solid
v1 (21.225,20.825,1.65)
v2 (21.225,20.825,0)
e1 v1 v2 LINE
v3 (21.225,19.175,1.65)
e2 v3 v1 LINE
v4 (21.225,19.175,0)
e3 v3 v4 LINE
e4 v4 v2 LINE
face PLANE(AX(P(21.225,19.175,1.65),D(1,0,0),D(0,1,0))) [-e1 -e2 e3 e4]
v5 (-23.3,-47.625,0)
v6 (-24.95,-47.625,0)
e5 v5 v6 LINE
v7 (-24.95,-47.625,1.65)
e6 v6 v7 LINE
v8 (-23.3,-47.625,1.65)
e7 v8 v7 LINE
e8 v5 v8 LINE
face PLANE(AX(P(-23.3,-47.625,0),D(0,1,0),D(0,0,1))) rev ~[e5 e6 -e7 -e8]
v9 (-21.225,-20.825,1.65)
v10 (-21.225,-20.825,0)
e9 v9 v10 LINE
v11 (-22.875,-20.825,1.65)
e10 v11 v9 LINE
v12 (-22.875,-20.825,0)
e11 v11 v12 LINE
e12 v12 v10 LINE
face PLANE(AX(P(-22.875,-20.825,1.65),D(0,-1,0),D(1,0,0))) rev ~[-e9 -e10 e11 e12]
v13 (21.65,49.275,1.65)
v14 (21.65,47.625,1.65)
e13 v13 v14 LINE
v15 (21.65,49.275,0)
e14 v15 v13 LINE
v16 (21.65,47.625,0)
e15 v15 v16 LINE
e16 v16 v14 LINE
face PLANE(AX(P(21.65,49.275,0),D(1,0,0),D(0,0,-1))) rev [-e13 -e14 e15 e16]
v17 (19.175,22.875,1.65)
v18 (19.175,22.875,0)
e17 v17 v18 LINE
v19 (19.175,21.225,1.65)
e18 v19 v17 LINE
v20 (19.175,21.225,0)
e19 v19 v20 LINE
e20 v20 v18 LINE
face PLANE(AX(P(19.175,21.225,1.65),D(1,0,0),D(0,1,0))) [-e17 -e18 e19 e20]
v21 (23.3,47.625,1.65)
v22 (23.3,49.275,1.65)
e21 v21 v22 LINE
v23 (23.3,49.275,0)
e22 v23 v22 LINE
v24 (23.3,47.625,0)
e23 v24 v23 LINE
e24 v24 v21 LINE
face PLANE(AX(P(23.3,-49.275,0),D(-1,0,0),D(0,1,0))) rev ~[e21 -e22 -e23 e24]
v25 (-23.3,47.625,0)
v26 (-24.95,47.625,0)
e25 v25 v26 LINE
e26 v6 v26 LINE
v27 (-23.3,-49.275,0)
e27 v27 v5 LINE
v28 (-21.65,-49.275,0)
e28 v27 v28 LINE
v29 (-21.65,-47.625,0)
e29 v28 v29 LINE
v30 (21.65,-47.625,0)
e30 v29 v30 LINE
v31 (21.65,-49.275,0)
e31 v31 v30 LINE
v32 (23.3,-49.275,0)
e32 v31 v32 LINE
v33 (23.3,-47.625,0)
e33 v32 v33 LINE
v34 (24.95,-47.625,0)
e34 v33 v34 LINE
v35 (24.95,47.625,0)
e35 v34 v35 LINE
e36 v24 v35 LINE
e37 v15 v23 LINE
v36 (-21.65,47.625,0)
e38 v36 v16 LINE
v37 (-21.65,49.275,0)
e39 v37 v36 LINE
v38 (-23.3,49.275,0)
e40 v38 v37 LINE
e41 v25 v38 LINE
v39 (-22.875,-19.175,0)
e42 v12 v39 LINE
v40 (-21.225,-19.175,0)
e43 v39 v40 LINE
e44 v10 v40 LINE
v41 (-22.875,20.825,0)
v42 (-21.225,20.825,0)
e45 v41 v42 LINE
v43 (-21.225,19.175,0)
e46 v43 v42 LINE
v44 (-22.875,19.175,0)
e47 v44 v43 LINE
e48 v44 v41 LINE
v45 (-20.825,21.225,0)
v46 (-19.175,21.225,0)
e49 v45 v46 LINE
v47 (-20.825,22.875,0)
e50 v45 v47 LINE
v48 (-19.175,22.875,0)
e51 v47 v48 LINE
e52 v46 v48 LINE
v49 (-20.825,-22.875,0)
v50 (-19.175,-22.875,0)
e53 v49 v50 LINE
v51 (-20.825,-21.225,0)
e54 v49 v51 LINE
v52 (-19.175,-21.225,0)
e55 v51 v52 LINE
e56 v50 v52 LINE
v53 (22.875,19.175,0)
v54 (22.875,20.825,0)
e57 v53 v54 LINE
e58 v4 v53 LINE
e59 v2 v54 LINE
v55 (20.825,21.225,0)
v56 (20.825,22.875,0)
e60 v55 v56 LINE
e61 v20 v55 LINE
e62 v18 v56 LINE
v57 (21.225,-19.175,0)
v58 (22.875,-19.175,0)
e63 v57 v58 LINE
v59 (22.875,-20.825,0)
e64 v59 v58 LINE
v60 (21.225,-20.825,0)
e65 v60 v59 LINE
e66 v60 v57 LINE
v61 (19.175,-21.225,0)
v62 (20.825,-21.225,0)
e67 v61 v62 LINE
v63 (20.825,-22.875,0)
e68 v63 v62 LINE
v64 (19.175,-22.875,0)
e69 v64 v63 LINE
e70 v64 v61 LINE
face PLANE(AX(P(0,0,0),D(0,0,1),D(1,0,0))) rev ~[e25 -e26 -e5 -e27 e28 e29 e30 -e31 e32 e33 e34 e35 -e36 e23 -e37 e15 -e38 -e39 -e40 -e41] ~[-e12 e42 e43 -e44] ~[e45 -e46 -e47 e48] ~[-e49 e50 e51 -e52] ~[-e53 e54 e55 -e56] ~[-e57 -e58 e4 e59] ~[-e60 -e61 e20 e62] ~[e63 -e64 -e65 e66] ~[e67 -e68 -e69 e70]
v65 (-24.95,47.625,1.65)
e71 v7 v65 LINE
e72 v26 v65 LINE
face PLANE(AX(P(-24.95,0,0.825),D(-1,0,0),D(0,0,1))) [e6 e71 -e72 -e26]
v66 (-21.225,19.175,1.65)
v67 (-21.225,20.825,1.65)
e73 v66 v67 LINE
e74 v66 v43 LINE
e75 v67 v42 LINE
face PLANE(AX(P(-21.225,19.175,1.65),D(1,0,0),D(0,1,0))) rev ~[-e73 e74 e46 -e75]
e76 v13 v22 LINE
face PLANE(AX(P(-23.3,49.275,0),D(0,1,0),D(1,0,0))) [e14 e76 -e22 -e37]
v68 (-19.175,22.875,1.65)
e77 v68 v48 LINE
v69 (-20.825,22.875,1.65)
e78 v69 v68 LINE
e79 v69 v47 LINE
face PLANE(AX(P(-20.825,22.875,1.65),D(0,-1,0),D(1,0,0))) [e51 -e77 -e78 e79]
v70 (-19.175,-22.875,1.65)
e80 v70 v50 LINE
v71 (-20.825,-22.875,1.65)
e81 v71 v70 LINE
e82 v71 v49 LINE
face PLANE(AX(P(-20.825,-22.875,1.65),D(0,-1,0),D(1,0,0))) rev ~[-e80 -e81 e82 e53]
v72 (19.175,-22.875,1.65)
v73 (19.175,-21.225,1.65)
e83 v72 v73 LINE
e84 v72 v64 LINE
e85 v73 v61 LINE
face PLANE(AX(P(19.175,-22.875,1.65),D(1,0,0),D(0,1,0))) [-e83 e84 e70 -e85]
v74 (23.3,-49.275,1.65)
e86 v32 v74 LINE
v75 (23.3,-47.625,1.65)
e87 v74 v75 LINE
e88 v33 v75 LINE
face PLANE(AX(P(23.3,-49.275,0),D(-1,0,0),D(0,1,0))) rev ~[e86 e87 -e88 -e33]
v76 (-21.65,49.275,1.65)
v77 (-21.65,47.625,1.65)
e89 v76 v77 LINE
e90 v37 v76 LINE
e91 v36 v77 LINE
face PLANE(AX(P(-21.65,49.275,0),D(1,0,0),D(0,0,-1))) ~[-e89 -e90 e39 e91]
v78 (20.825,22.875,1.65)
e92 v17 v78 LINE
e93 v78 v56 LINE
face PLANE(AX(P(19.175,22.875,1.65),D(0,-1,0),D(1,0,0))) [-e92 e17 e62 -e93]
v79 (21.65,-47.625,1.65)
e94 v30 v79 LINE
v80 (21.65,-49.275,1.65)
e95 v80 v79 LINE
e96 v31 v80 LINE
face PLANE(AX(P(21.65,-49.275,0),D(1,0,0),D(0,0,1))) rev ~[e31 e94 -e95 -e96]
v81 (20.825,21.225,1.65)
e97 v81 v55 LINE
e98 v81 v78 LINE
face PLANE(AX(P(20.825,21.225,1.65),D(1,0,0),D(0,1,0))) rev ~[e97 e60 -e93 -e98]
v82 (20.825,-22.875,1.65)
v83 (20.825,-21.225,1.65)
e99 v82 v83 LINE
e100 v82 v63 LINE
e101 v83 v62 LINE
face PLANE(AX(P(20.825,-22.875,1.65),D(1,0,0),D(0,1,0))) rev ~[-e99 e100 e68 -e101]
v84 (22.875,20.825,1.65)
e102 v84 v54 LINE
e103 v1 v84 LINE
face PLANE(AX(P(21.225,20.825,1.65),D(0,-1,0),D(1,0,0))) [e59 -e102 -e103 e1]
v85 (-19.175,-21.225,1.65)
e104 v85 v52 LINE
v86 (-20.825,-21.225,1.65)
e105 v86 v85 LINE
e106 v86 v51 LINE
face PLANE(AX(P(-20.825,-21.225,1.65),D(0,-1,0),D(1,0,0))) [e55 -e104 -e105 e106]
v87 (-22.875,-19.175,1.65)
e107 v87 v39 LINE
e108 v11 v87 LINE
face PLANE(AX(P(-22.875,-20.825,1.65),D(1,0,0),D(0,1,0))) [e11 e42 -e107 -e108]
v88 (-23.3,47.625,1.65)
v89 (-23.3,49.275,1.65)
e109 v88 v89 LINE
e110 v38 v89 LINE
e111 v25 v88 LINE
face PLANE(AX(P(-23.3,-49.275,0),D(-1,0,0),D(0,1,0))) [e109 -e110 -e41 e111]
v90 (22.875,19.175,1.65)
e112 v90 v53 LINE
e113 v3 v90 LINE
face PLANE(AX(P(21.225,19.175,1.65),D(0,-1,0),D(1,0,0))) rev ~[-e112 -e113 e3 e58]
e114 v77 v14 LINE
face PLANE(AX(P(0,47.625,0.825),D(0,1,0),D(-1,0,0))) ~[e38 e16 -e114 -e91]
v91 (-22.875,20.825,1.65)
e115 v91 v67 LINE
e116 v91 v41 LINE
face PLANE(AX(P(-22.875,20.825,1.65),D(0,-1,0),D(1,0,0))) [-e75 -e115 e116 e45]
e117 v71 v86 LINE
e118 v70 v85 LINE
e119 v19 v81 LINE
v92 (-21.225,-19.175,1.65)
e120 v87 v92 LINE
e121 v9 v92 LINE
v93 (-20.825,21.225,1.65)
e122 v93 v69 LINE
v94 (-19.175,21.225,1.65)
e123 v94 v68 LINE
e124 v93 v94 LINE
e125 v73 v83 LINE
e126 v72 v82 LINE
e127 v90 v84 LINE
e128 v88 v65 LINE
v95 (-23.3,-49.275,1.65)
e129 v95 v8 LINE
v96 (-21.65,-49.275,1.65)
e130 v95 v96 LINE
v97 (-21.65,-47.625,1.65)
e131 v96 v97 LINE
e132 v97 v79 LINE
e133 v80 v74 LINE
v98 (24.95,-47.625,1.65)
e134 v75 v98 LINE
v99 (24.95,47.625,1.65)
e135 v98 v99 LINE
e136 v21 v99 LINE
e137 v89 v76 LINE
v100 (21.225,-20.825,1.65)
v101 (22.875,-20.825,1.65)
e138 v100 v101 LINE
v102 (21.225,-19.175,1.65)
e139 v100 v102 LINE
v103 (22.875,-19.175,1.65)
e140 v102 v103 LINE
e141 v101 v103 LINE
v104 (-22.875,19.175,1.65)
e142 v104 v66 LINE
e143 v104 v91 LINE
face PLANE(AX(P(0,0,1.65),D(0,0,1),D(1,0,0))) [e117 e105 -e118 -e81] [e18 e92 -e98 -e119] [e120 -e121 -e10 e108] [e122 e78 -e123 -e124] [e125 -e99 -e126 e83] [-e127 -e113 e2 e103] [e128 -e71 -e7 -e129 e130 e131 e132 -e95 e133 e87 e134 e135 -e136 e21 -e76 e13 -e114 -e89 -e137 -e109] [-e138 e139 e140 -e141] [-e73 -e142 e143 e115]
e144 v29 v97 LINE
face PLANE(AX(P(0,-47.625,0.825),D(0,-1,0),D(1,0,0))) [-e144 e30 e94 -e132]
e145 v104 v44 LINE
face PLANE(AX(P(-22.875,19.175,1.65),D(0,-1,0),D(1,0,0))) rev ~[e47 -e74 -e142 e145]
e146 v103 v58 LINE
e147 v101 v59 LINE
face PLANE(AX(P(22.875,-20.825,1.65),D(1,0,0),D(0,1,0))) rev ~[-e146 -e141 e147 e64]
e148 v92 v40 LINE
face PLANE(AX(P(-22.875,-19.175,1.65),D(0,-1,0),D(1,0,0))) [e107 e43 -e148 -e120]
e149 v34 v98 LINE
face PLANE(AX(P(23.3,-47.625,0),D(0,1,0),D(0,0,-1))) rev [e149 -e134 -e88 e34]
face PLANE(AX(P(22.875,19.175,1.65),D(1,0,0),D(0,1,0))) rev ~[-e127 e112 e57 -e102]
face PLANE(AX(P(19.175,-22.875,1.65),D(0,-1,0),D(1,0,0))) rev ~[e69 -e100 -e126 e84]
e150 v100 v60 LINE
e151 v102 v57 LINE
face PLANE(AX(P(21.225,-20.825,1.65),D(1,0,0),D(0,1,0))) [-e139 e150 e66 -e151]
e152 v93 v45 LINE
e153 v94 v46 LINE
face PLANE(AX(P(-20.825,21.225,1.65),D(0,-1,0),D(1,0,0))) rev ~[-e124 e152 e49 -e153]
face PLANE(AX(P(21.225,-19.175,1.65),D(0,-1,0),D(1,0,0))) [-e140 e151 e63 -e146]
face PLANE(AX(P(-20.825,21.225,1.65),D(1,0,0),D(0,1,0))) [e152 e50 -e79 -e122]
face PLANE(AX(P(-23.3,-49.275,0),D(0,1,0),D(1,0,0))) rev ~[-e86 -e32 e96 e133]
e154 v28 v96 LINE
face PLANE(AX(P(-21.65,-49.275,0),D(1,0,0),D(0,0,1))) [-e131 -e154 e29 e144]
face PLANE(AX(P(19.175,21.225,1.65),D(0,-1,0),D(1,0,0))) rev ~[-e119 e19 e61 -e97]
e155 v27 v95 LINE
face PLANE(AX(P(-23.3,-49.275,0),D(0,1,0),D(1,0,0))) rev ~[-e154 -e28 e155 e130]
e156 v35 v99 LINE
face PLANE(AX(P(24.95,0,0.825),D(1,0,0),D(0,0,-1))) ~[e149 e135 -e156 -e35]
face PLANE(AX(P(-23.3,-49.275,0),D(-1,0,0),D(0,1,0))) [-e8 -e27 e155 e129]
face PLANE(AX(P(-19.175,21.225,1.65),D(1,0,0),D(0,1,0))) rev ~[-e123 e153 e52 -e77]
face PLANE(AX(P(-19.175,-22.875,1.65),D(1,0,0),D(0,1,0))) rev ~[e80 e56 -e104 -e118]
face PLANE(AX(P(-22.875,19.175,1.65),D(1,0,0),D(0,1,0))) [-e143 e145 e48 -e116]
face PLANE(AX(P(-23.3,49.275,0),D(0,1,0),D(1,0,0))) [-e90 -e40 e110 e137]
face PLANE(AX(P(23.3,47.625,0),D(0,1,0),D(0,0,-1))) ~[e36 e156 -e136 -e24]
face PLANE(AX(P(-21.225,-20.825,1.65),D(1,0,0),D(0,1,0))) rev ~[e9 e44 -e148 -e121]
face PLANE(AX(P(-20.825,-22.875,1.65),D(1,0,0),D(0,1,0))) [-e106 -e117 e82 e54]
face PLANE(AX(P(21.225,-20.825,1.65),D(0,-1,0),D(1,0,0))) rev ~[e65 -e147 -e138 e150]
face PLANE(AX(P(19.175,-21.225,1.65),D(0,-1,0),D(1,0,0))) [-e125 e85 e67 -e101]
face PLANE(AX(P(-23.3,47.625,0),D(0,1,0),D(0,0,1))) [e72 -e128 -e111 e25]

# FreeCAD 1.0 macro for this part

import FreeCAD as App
import Part
import Sketcher

V = App.Vector

doc = App.newDocument("Part")
body = doc.addObject("PartDesign::Body", "Body")

# Sketch on XY plane
sketch1 = body.newObject("Sketcher::SketchObject", "Sketch")
sketch1.AttachmentSupport = (doc.getObject("XY_Plane"), [""])
sketch1.MapMode = "FlatFace"
sketch1.addGeometry(Part.LineSegment(V(-23.3, 49.275, 0), V(-23.3, -49.275, 0)), False)
sketch1.addGeometry(Part.LineSegment(V(-23.3, -49.275, 0), V(23.3, -49.275, 0)), False)
sketch1.addGeometry(Part.LineSegment(V(23.3, -49.275, 0), V(23.3, 49.275, 0)), False)
sketch1.addGeometry(Part.LineSegment(V(23.3, 49.275, 0), V(-23.3, 49.275, 0)), False)
sketch1.addConstraint(Sketcher.Constraint("Coincident", 0, 2, 1, 1))
sketch1.addConstraint(Sketcher.Constraint("Coincident", 1, 2, 2, 1))
sketch1.addConstraint(Sketcher.Constraint("Coincident", 2, 2, 3, 1))
sketch1.addConstraint(Sketcher.Constraint("Coincident", 3, 2, 0, 1))
sketch1.addConstraint(Sketcher.Constraint("Vertical", 0))
sketch1.addConstraint(Sketcher.Constraint("Horizontal", 1))
sketch1.addConstraint(Sketcher.Constraint("Vertical", 2))
sketch1.addConstraint(Sketcher.Constraint("Horizontal", 3))
sketch1.addConstraint(Sketcher.Constraint("Symmetric", 0, 2, 2, 2, -1, 1))
sketch1.addConstraint(Sketcher.Constraint("DistanceX", 1, 1, 1, 2, 46.6))
sketch1.addConstraint(Sketcher.Constraint("DistanceY", 0, 2, 0, 1, 98.55))
pad1 = body.newObject("PartDesign::Pad", "Pad")
pad1.Profile = sketch1
pad1.Length = 1.65

# Sketch on YZ plane
sketch2 = body.newObject("Sketcher::SketchObject", "Sketch001")
sketch2.AttachmentSupport = (doc.getObject("YZ_Plane"), [""])
sketch2.MapMode = "FlatFace"
sketch2.AttachmentOffset = App.Placement(V(0, 0, -23.3), App.Rotation())
sketch2.addGeometry(Part.LineSegment(V(47.625, 0, 0), V(-47.625, 0, 0)), False)
sketch2.addGeometry(Part.LineSegment(V(-47.625, 0, 0), V(-47.625, 1.65, 0)), False)
sketch2.addGeometry(Part.LineSegment(V(-47.625, 1.65, 0), V(47.625, 1.65, 0)), False)
sketch2.addGeometry(Part.LineSegment(V(47.625, 1.65, 0), V(47.625, 0, 0)), False)
sketch2.addConstraint(Sketcher.Constraint("Coincident", 0, 2, 1, 1))
sketch2.addConstraint(Sketcher.Constraint("Coincident", 1, 2, 2, 1))
sketch2.addConstraint(Sketcher.Constraint("Coincident", 2, 2, 3, 1))
sketch2.addConstraint(Sketcher.Constraint("Coincident", 3, 2, 0, 1))
sketch2.addConstraint(Sketcher.Constraint("Horizontal", 0))
sketch2.addConstraint(Sketcher.Constraint("Vertical", 1))
sketch2.addConstraint(Sketcher.Constraint("Horizontal", 2))
sketch2.addConstraint(Sketcher.Constraint("Vertical", 3))
sketch2.addConstraint(Sketcher.Constraint("Symmetric", 0, 2, 3, 2, -1, 1))
sketch2.addConstraint(Sketcher.Constraint("DistanceX", 0, 2, 0, 1, 95.25))
sketch2.addConstraint(Sketcher.Constraint("DistanceY", 1, 1, 1, 2, 1.65))
pad2 = body.newObject("PartDesign::Pad", "Pad001")
pad2.Profile = sketch2
pad2.Length = 1.65
pad2.Reversed = True
doc.recompute()

mirrored = body.newObject("PartDesign::Mirrored", "Mirrored")
mirrored.Originals = [pad2]
mirrored.MirrorPlane = (doc.getObject("YZ_Plane"), [""])
body.Tip = mirrored

# Sketch on XY plane
sketch3 = body.newObject("Sketcher::SketchObject", "Sketch002")
sketch3.AttachmentSupport = (doc.getObject("XY_Plane"), [""])
sketch3.MapMode = "FlatFace"
sketch3.AttachmentOffset = App.Placement(V(0, 0, 1.65), App.Rotation())
sketch3.addGeometry(Part.LineSegment(V(19.175, -21.225, 0), V(19.175, -22.875, 0)), False)
sketch3.addGeometry(Part.LineSegment(V(19.175, -22.875, 0), V(20.825, -22.875, 0)), False)
sketch3.addGeometry(Part.LineSegment(V(20.825, -22.875, 0), V(20.825, -21.225, 0)), False)
sketch3.addGeometry(Part.LineSegment(V(20.825, -21.225, 0), V(19.175, -21.225, 0)), False)
sketch3.addGeometry(Part.LineSegment(V(-20.825, -21.225, 0), V(-20.825, -22.875, 0)), False)
sketch3.addGeometry(Part.LineSegment(V(-20.825, -22.875, 0), V(-19.175, -22.875, 0)), False)
sketch3.addGeometry(Part.LineSegment(V(-19.175, -22.875, 0), V(-19.175, -21.225, 0)), False)
sketch3.addGeometry(Part.LineSegment(V(-19.175, -21.225, 0), V(-20.825, -21.225, 0)), False)
sketch3.addGeometry(Part.LineSegment(V(-22.875, -19.175, 0), V(-22.875, -20.825, 0)), False)
sketch3.addGeometry(Part.LineSegment(V(-22.875, -20.825, 0), V(-21.225, -20.825, 0)), False)
sketch3.addGeometry(Part.LineSegment(V(-21.225, -20.825, 0), V(-21.225, -19.175, 0)), False)
sketch3.addGeometry(Part.LineSegment(V(-21.225, -19.175, 0), V(-22.875, -19.175, 0)), False)
sketch3.addGeometry(Part.LineSegment(V(-22.875, 20.825, 0), V(-22.875, 19.175, 0)), False)
sketch3.addGeometry(Part.LineSegment(V(-22.875, 19.175, 0), V(-21.225, 19.175, 0)), False)
sketch3.addGeometry(Part.LineSegment(V(-21.225, 19.175, 0), V(-21.225, 20.825, 0)), False)
sketch3.addGeometry(Part.LineSegment(V(-21.225, 20.825, 0), V(-22.875, 20.825, 0)), False)
sketch3.addGeometry(Part.LineSegment(V(-20.825, 22.875, 0), V(-20.825, 21.225, 0)), False)
sketch3.addGeometry(Part.LineSegment(V(-20.825, 21.225, 0), V(-19.175, 21.225, 0)), False)
sketch3.addGeometry(Part.LineSegment(V(-19.175, 21.225, 0), V(-19.175, 22.875, 0)), False)
sketch3.addGeometry(Part.LineSegment(V(-19.175, 22.875, 0), V(-20.825, 22.875, 0)), False)
sketch3.addGeometry(Part.LineSegment(V(19.175, 22.875, 0), V(19.175, 21.225, 0)), False)
sketch3.addGeometry(Part.LineSegment(V(19.175, 21.225, 0), V(20.825, 21.225, 0)), False)
sketch3.addGeometry(Part.LineSegment(V(20.825, 21.225, 0), V(20.825, 22.875, 0)), False)
sketch3.addGeometry(Part.LineSegment(V(20.825, 22.875, 0), V(19.175, 22.875, 0)), False)
sketch3.addGeometry(Part.LineSegment(V(21.225, 20.825, 0), V(21.225, 19.175, 0)), False)
sketch3.addGeometry(Part.LineSegment(V(21.225, 19.175, 0), V(22.875, 19.175, 0)), False)
sketch3.addGeometry(Part.LineSegment(V(22.875, 19.175, 0), V(22.875, 20.825, 0)), False)
sketch3.addGeometry(Part.LineSegment(V(22.875, 20.825, 0), V(21.225, 20.825, 0)), False)
sketch3.addGeometry(Part.LineSegment(V(21.225, -19.175, 0), V(21.225, -20.825, 0)), False)
sketch3.addGeometry(Part.LineSegment(V(21.225, -20.825, 0), V(22.875, -20.825, 0)), False)
sketch3.addGeometry(Part.LineSegment(V(22.875, -20.825, 0), V(22.875, -19.175, 0)), False)
sketch3.addGeometry(Part.LineSegment(V(22.875, -19.175, 0), V(21.225, -19.175, 0)), False)
sketch3.addConstraint(Sketcher.Constraint("Coincident", 0, 2, 1, 1))
sketch3.addConstraint(Sketcher.Constraint("Coincident", 1, 2, 2, 1))
sketch3.addConstraint(Sketcher.Constraint("Coincident", 2, 2, 3, 1))
sketch3.addConstraint(Sketcher.Constraint("Coincident", 3, 2, 0, 1))
sketch3.addConstraint(Sketcher.Constraint("Coincident", 4, 2, 5, 1))
sketch3.addConstraint(Sketcher.Constraint("Coincident", 5, 2, 6, 1))
sketch3.addConstraint(Sketcher.Constraint("Coincident", 6, 2, 7, 1))
sketch3.addConstraint(Sketcher.Constraint("Coincident", 7, 2, 4, 1))
sketch3.addConstraint(Sketcher.Constraint("Coincident", 8, 2, 9, 1))
sketch3.addConstraint(Sketcher.Constraint("Coincident", 9, 2, 10, 1))
sketch3.addConstraint(Sketcher.Constraint("Coincident", 10, 2, 11, 1))
sketch3.addConstraint(Sketcher.Constraint("Coincident", 11, 2, 8, 1))
sketch3.addConstraint(Sketcher.Constraint("Coincident", 12, 2, 13, 1))
sketch3.addConstraint(Sketcher.Constraint("Coincident", 13, 2, 14, 1))
sketch3.addConstraint(Sketcher.Constraint("Coincident", 14, 2, 15, 1))
sketch3.addConstraint(Sketcher.Constraint("Coincident", 15, 2, 12, 1))
sketch3.addConstraint(Sketcher.Constraint("Coincident", 16, 2, 17, 1))
sketch3.addConstraint(Sketcher.Constraint("Coincident", 17, 2, 18, 1))
sketch3.addConstraint(Sketcher.Constraint("Coincident", 18, 2, 19, 1))
sketch3.addConstraint(Sketcher.Constraint("Coincident", 19, 2, 16, 1))
sketch3.addConstraint(Sketcher.Constraint("Coincident", 20, 2, 21, 1))
sketch3.addConstraint(Sketcher.Constraint("Coincident", 21, 2, 22, 1))
sketch3.addConstraint(Sketcher.Constraint("Coincident", 22, 2, 23, 1))
sketch3.addConstraint(Sketcher.Constraint("Coincident", 23, 2, 20, 1))
sketch3.addConstraint(Sketcher.Constraint("Coincident", 24, 2, 25, 1))
sketch3.addConstraint(Sketcher.Constraint("Coincident", 25, 2, 26, 1))
sketch3.addConstraint(Sketcher.Constraint("Coincident", 26, 2, 27, 1))
sketch3.addConstraint(Sketcher.Constraint("Coincident", 27, 2, 24, 1))
sketch3.addConstraint(Sketcher.Constraint("Coincident", 28, 2, 29, 1))
sketch3.addConstraint(Sketcher.Constraint("Coincident", 29, 2, 30, 1))
sketch3.addConstraint(Sketcher.Constraint("Coincident", 30, 2, 31, 1))
sketch3.addConstraint(Sketcher.Constraint("Coincident", 31, 2, 28, 1))
sketch3.addConstraint(Sketcher.Constraint("Vertical", 0))
sketch3.addConstraint(Sketcher.Constraint("Horizontal", 1))
sketch3.addConstraint(Sketcher.Constraint("Vertical", 2))
sketch3.addConstraint(Sketcher.Constraint("Horizontal", 3))
sketch3.addConstraint(Sketcher.Constraint("Vertical", 4))
sketch3.addConstraint(Sketcher.Constraint("Horizontal", 5))
sketch3.addConstraint(Sketcher.Constraint("Vertical", 6))
sketch3.addConstraint(Sketcher.Constraint("Horizontal", 7))
sketch3.addConstraint(Sketcher.Constraint("Vertical", 8))
sketch3.addConstraint(Sketcher.Constraint("Horizontal", 9))
sketch3.addConstraint(Sketcher.Constraint("Vertical", 10))
sketch3.addConstraint(Sketcher.Constraint("Horizontal", 11))
sketch3.addConstraint(Sketcher.Constraint("Vertical", 12))
sketch3.addConstraint(Sketcher.Constraint("Horizontal", 13))
sketch3.addConstraint(Sketcher.Constraint("Vertical", 14))
sketch3.addConstraint(Sketcher.Constraint("Horizontal", 15))
sketch3.addConstraint(Sketcher.Constraint("Vertical", 16))
sketch3.addConstraint(Sketcher.Constraint("Horizontal", 17))
sketch3.addConstraint(Sketcher.Constraint("Vertical", 18))
sketch3.addConstraint(Sketcher.Constraint("Horizontal", 19))
sketch3.addConstraint(Sketcher.Constraint("Vertical", 20))
sketch3.addConstraint(Sketcher.Constraint("Horizontal", 21))
sketch3.addConstraint(Sketcher.Constraint("Vertical", 22))
sketch3.addConstraint(Sketcher.Constraint("Horizontal", 23))
sketch3.addConstraint(Sketcher.Constraint("Vertical", 24))
sketch3.addConstraint(Sketcher.Constraint("Horizontal", 25))
sketch3.addConstraint(Sketcher.Constraint("Vertical", 26))
sketch3.addConstraint(Sketcher.Constraint("Horizontal", 27))
sketch3.addConstraint(Sketcher.Constraint("Vertical", 28))
sketch3.addConstraint(Sketcher.Constraint("Horizontal", 29))
sketch3.addConstraint(Sketcher.Constraint("Vertical", 30))
sketch3.addConstraint(Sketcher.Constraint("Horizontal", 31))
sketch3.addConstraint(Sketcher.Constraint("Symmetric", 2, 2, 16, 2, -1, 1))
sketch3.addConstraint(Sketcher.Constraint("Symmetric", 0, 2, 18, 2, -1, 1))
sketch3.addConstraint(Sketcher.Constraint("Symmetric", 6, 2, 20, 2, -1, 1))
sketch3.addConstraint(Sketcher.Constraint("Symmetric", 4, 2, 22, 2, -1, 1))
sketch3.addConstraint(Sketcher.Constraint("Symmetric", 10, 2, 24, 2, -1, 1))
sketch3.addConstraint(Sketcher.Constraint("Symmetric", 8, 2, 26, 2, -1, 1))
sketch3.addConstraint(Sketcher.Constraint("Symmetric", 14, 2, 28, 2, -1, 1))
sketch3.addConstraint(Sketcher.Constraint("Symmetric", 12, 2, 30, 2, -1, 1))
sketch3.addConstraint(Sketcher.Constraint("Symmetric", 1, 2, 4, 2, -2))
sketch3.addConstraint(Sketcher.Constraint("Symmetric", 3, 2, 6, 2, -2))
sketch3.addConstraint(Sketcher.Constraint("Symmetric", 13, 2, 24, 2, -2))
sketch3.addConstraint(Sketcher.Constraint("Symmetric", 15, 2, 26, 2, -2))
sketch3.addConstraint(Sketcher.Constraint("Equal", 7, 9))
sketch3.addConstraint(Sketcher.Constraint("Equal", 31, 0))
sketch3.addConstraint(Sketcher.Constraint("Equal", 6, 8))
sketch3.addConstraint(Sketcher.Constraint("DistanceX", 4, 2, 0, 2, 40.0))
sketch3.addConstraint(Sketcher.Constraint("DistanceY", 8, 2, 12, 2, 40.0))
sketch3.addConstraint(Sketcher.Constraint("DistanceX", 1, 1, 1, 2, 1.65))
sketch3.addConstraint(Sketcher.Constraint("DistanceY", 7, 2, 8, 2, 0.4))
sketch3.addConstraint(Sketcher.Constraint("DistanceX", 8, 2, 6, 2, 3.7))
pocket1 = body.newObject("PartDesign::Pocket", "Pocket")
pocket1.Profile = sketch3
pocket1.Length = 1.65

# Sketch on XZ plane
sketch4 = body.newObject("Sketcher::SketchObject", "Sketch003")
sketch4.AttachmentSupport = (doc.getObject("XZ_Plane"), [""])
sketch4.MapMode = "FlatFace"
sketch4.AttachmentOffset = App.Placement(V(0, 0, 49.275), App.Rotation())
sketch4.addGeometry(Part.LineSegment(V(-21.65, 1.65, 0), V(-21.65, 0, 0)), False)
sketch4.addGeometry(Part.LineSegment(V(-21.65, 0, 0), V(21.65, 0, 0)), False)
sketch4.addGeometry(Part.LineSegment(V(21.65, 0, 0), V(21.65, 1.65, 0)), False)
sketch4.addGeometry(Part.LineSegment(V(21.65, 1.65, 0), V(-21.65, 1.65, 0)), False)
sketch4.addConstraint(Sketcher.Constraint("Coincident", 0, 2, 1, 1))
sketch4.addConstraint(Sketcher.Constraint("Coincident", 1, 2, 2, 1))
sketch4.addConstraint(Sketcher.Constraint("Coincident", 2, 2, 3, 1))
sketch4.addConstraint(Sketcher.Constraint("Coincident", 3, 2, 0, 1))
sketch4.addConstraint(Sketcher.Constraint("Vertical", 0))
sketch4.addConstraint(Sketcher.Constraint("Horizontal", 1))
sketch4.addConstraint(Sketcher.Constraint("Vertical", 2))
sketch4.addConstraint(Sketcher.Constraint("Horizontal", 3))
sketch4.addConstraint(Sketcher.Constraint("Symmetric", 0, 2, 1, 2, -1, 1))
sketch4.addConstraint(Sketcher.Constraint("DistanceX", 1, 1, 1, 2, 43.3))
sketch4.addConstraint(Sketcher.Constraint("DistanceY", 0, 2, 0, 1, 1.65))
pocket2 = body.newObject("PartDesign::Pocket", "Pocket001")
pocket2.Profile = sketch4
pocket2.Length = 1.65
doc.recompute()

mirrored2 = body.newObject("PartDesign::Mirrored", "Mirrored001")
mirrored2.Originals = [pocket2]
mirrored2.MirrorPlane = (doc.getObject("XZ_Plane"), [""])
body.Tip = mirrored2

doc.recompute()
